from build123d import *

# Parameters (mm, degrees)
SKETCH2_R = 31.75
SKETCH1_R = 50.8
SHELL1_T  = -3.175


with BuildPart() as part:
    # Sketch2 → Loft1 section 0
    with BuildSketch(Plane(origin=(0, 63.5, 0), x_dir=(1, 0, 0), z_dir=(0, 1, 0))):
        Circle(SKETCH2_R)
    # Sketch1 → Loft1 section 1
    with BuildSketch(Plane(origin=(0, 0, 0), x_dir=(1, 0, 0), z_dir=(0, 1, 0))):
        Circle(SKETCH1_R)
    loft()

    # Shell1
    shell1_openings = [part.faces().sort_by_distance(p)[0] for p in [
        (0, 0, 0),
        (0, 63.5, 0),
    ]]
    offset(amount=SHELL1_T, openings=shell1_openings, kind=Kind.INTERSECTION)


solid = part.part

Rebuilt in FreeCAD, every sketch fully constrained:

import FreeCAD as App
import Part
import Sketcher
from FreeCAD import Vector
Q = App.Units.Quantity


def faces_at(feature, points):
    """Names of the faces that lie closest to the given points."""
    faces = feature.Shape.Faces
    near = lambda p: min(range(len(faces)), key=lambda i: faces[i].distToShape(Part.Vertex(*p))[0])
    return sorted({f"Face{near(p) + 1}" for p in points})

doc = App.newDocument("Part")
params = doc.addObject("Spreadsheet::Sheet", "Params")
for row, (alias, value) in enumerate([
    ("sketch1_diameter", "2.5 in"),
    ("sketch2_diameter", "4 in"),
    ("thickness_wall", "0.125 in"),
], start=1):
    params.set(f"A{row}", alias)
    params.set(f"B{row}", "=" + value)
    params.setAlias(f"B{row}", alias)

body = doc.addObject("PartDesign::Body", "Body")

# Sketch on XZ plane
sketch1 = doc.addObject("Sketcher::SketchObject", "Sketch")
body.addObject(sketch1)
sketch1.AttachmentSupport = (doc.XZ_Plane, [""])
sketch1.MapMode = "FlatFace"
sketch1.AttachmentOffset = App.Placement(Vector(0, 0, -2.5 * 25.4), App.Rotation())
sketch1.addGeometry(Part.Circle(Vector(0, 0, 0), Vector(0, 0, 1), 31.75), False)
sketch1.addConstraint(Sketcher.Constraint("Coincident", 0, 3, -1, 1))
sketch1.addConstraint(Sketcher.Constraint("Diameter", 0, Q("2.5 in")))
sketch1.setExpression("Constraints[1]", "Params.sketch1_diameter")

# Sketch on XZ plane
sketch2 = doc.addObject("Sketcher::SketchObject", "Sketch001")
body.addObject(sketch2)
sketch2.AttachmentSupport = (doc.XZ_Plane, [""])
sketch2.MapMode = "FlatFace"
sketch2.addGeometry(Part.Circle(Vector(0, 0, 0), Vector(0, 0, 1), 50.8), False)
sketch2.addConstraint(Sketcher.Constraint("Coincident", 0, 3, -1, 1))
sketch2.addConstraint(Sketcher.Constraint("Diameter", 0, Q("4 in")))
sketch2.setExpression("Constraints[1]", "Params.sketch2_diameter")

additiveloft = doc.addObject("PartDesign::AdditiveLoft", "AdditiveLoft")
body.addObject(additiveloft)
additiveloft.Profile = sketch1
additiveloft.Sections = [sketch2]
doc.recompute()

thickness = doc.addObject("PartDesign::Thickness", "Thickness")
body.addObject(thickness)
thickness.Base = (additiveloft, faces_at(additiveloft, [(0, 0, 0), (0, 63.5, 0)]))
thickness.setExpression("Value", "Params.thickness_wall")
thickness.Reversed = True
thickness.Join = "Intersection"

doc.recompute()
